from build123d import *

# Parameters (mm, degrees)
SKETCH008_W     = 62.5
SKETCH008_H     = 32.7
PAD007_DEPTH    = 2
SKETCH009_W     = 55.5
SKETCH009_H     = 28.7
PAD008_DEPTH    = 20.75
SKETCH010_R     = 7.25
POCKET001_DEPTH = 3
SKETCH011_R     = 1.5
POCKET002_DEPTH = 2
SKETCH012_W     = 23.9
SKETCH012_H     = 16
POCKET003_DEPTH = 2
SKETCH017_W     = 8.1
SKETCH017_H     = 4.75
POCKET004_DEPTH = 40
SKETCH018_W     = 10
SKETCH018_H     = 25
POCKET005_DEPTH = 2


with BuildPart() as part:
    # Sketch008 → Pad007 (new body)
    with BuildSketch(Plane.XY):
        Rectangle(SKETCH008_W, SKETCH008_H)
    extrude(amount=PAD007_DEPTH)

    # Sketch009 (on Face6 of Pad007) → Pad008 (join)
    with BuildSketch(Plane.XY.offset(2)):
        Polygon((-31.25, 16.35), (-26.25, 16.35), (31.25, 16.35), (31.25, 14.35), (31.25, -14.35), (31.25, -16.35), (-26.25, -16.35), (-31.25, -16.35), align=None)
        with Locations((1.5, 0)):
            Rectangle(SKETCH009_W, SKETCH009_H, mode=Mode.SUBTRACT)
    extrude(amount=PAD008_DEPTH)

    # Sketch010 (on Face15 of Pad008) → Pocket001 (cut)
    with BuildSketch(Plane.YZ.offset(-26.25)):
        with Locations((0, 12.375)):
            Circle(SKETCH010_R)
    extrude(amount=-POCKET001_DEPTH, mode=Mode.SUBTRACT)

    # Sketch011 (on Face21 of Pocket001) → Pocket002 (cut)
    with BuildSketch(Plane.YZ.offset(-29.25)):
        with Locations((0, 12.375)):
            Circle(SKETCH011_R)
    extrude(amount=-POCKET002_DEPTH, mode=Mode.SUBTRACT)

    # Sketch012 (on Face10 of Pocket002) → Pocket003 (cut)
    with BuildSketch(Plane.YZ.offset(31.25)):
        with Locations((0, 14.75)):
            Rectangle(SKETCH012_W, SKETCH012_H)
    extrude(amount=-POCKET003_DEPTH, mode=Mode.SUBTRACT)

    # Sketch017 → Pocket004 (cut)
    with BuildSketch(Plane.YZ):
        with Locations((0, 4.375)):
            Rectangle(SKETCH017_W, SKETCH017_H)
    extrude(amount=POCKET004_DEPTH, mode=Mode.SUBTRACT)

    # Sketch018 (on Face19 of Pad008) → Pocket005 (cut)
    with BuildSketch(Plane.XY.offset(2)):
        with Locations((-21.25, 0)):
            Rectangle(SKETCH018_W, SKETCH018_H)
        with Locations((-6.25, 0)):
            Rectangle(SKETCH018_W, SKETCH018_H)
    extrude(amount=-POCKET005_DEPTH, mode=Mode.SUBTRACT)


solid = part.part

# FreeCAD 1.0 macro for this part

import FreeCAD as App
import Part
import Sketcher

V = App.Vector

doc = App.newDocument("Part")
body = doc.addObject("PartDesign::Body", "Body")

# Sketch on XY plane
sketch1 = doc.addObject("Sketcher::SketchObject", "Sketch")
body.addObject(sketch1)
sketch1.AttachmentSupport = (doc.XY_Plane, [""])
sketch1.MapMode = "FlatFace"
sketch1.addGeometry(Part.LineSegment(V(-31.25, 16.35, 0), V(-31.25, -16.35, 0)), False)
sketch1.addGeometry(Part.LineSegment(V(-31.25, -16.35, 0), V(31.25, -16.35, 0)), False)
sketch1.addGeometry(Part.LineSegment(V(31.25, -16.35, 0), V(31.25, 16.35, 0)), False)
sketch1.addGeometry(Part.LineSegment(V(31.25, 16.35, 0), V(-31.25, 16.35, 0)), False)
sketch1.addConstraint(Sketcher.Constraint("Coincident", 0, 2, 1, 1))
sketch1.addConstraint(Sketcher.Constraint("Coincident", 1, 2, 2, 1))
sketch1.addConstraint(Sketcher.Constraint("Coincident", 2, 2, 3, 1))
sketch1.addConstraint(Sketcher.Constraint("Coincident", 3, 2, 0, 1))
sketch1.addConstraint(Sketcher.Constraint("Vertical", 0))
sketch1.addConstraint(Sketcher.Constraint("Horizontal", 1))
sketch1.addConstraint(Sketcher.Constraint("Vertical", 2))
sketch1.addConstraint(Sketcher.Constraint("Horizontal", 3))
sketch1.addConstraint(Sketcher.Constraint("Symmetric", 0, 2, 2, 2, -1, 1))
sketch1.addConstraint(Sketcher.Constraint("DistanceX", 1, 1, 1, 2, 62.5))
sketch1.addConstraint(Sketcher.Constraint("DistanceY", 0, 2, 0, 1, 32.7))
pad1 = doc.addObject("PartDesign::Pad", "Pad")
body.addObject(pad1)
pad1.Profile = sketch1
pad1.Length = 2

# Sketch on XY plane
sketch2 = doc.addObject("Sketcher::SketchObject", "Sketch001")
body.addObject(sketch2)
sketch2.AttachmentSupport = (doc.XY_Plane, [""])
sketch2.MapMode = "FlatFace"
sketch2.AttachmentOffset = App.Placement(V(0, 0, 2), App.Rotation())
sketch2.addGeometry(Part.LineSegment(V(31.25, 16.35, 0), V(-31.25, 16.35, 0)), False)
sketch2.addGeometry(Part.LineSegment(V(-31.25, 16.35, 0), V(-31.25, -16.35, 0)), False)
sketch2.addGeometry(Part.LineSegment(V(-31.25, -16.35, 0), V(31.25, -16.35, 0)), False)
sketch2.addGeometry(Part.LineSegment(V(31.25, -16.35, 0), V(31.25, 16.35, 0)), False)
sketch2.addGeometry(Part.LineSegment(V(-26.25, -14.35, 0), V(-26.25, 14.35, 0)), False)
sketch2.addGeometry(Part.LineSegment(V(-26.25, 14.35, 0), V(29.25, 14.35, 0)), False)
sketch2.addGeometry(Part.LineSegment(V(29.25, 14.35, 0), V(29.25, -14.35, 0)), False)
sketch2.addGeometry(Part.LineSegment(V(29.25, -14.35, 0), V(-26.25, -14.35, 0)), False)
sketch2.addConstraint(Sketcher.Constraint("Coincident", 0, 2, 1, 1))
sketch2.addConstraint(Sketcher.Constraint("Coincident", 1, 2, 2, 1))
sketch2.addConstraint(Sketcher.Constraint("Coincident", 2, 2, 3, 1))
sketch2.addConstraint(Sketcher.Constraint("Coincident", 3, 2, 0, 1))
sketch2.addConstraint(Sketcher.Constraint("Coincident", 4, 2, 5, 1))
sketch2.addConstraint(Sketcher.Constraint("Coincident", 5, 2, 6, 1))
sketch2.addConstraint(Sketcher.Constraint("Coincident", 6, 2, 7, 1))
sketch2.addConstraint(Sketcher.Constraint("Coincident", 7, 2, 4, 1))
sketch2.addConstraint(Sketcher.Constraint("Horizontal", 0))
sketch2.addConstraint(Sketcher.Constraint("Vertical", 1))
sketch2.addConstraint(Sketcher.Constraint("Horizontal", 2))
sketch2.addConstraint(Sketcher.Constraint("Vertical", 3))
sketch2.addConstraint(Sketcher.Constraint("Vertical", 4))
sketch2.addConstraint(Sketcher.Constraint("Horizontal", 5))
sketch2.addConstraint(Sketcher.Constraint("Vertical", 6))
sketch2.addConstraint(Sketcher.Constraint("Horizontal", 7))
sketch2.addConstraint(Sketcher.Constraint("Symmetric", 0, 2, 2, 2, -1, 1))
sketch2.addConstraint(Sketcher.Constraint("DistanceX", 0, 2, 0, 1, 62.5))
sketch2.addConstraint(Sketcher.Constraint("DistanceX", 5, 1, 5, 2, 55.5))
sketch2.addConstraint(Sketcher.Constraint("DistanceY", 1, 2, 1, 1, 32.7))
sketch2.addConstraint(Sketcher.Constraint("DistanceY", 4, 1, 4, 2, 28.7))
sketch2.addConstraint(Sketcher.Constraint("DistanceX", 0, 2, 4, 2, 5.0))
sketch2.addConstraint(Sketcher.Constraint("DistanceY", 4, 2, 0, 2, 2.0))
pad2 = doc.addObject("PartDesign::Pad", "Pad001")
body.addObject(pad2)
pad2.Profile = sketch2
pad2.Length = 20.75

# Sketch on YZ plane
sketch3 = doc.addObject("Sketcher::SketchObject", "Sketch002")
body.addObject(sketch3)
sketch3.AttachmentSupport = (doc.YZ_Plane, [""])
sketch3.MapMode = "FlatFace"
sketch3.AttachmentOffset = App.Placement(V(0, 0, -26.25), App.Rotation())
sketch3.addGeometry(Part.Circle(V(0, 12.375, 0), V(0, 0, 1), 7.25), False)
sketch3.addConstraint(Sketcher.Constraint("PointOnObject", 0, 3, -2))
sketch3.addConstraint(Sketcher.Constraint("Diameter", 0, 14.5))
sketch3.addConstraint(Sketcher.Constraint("DistanceY", -1, 1, 0, 3, 12.375))
pocket1 = doc.addObject("PartDesign::Pocket", "Pocket")
body.addObject(pocket1)
pocket1.Profile = sketch3
pocket1.Length = 3

# Sketch on YZ plane
sketch4 = doc.addObject("Sketcher::SketchObject", "Sketch003")
body.addObject(sketch4)
sketch4.AttachmentSupport = (doc.YZ_Plane, [""])
sketch4.MapMode = "FlatFace"
sketch4.AttachmentOffset = App.Placement(V(0, 0, -29.25), App.Rotation())
sketch4.addGeometry(Part.Circle(V(0, 12.375, 0), V(0, 0, 1), 1.5), False)
sketch4.addConstraint(Sketcher.Constraint("PointOnObject", 0, 3, -2))
sketch4.addConstraint(Sketcher.Constraint("Diameter", 0, 3.0))
sketch4.addConstraint(Sketcher.Constraint("DistanceY", -1, 1, 0, 3, 12.375))
pocket2 = doc.addObject("PartDesign::Pocket", "Pocket001")
body.addObject(pocket2)
pocket2.Profile = sketch4
pocket2.Length = 2

# Sketch on YZ plane
sketch5 = doc.addObject("Sketcher::SketchObject", "Sketch004")
body.addObject(sketch5)
sketch5.AttachmentSupport = (doc.YZ_Plane, [""])
sketch5.MapMode = "FlatFace"
sketch5.AttachmentOffset = App.Placement(V(0, 0, 31.25), App.Rotation())
sketch5.addGeometry(Part.LineSegment(V(-11.95, 22.75, 0), V(-11.95, 6.75, 0)), False)
sketch5.addGeometry(Part.LineSegment(V(-11.95, 6.75, 0), V(11.95, 6.75, 0)), False)
sketch5.addGeometry(Part.LineSegment(V(11.95, 6.75, 0), V(11.95, 22.75, 0)), False)
sketch5.addGeometry(Part.LineSegment(V(11.95, 22.75, 0), V(-11.95, 22.75, 0)), False)
sketch5.addConstraint(Sketcher.Constraint("Coincident", 0, 2, 1, 1))
sketch5.addConstraint(Sketcher.Constraint("Coincident", 1, 2, 2, 1))
sketch5.addConstraint(Sketcher.Constraint("Coincident", 2, 2, 3, 1))
sketch5.addConstraint(Sketcher.Constraint("Coincident", 3, 2, 0, 1))
sketch5.addConstraint(Sketcher.Constraint("Vertical", 0))
sketch5.addConstraint(Sketcher.Constraint("Horizontal", 1))
sketch5.addConstraint(Sketcher.Constraint("Vertical", 2))
sketch5.addConstraint(Sketcher.Constraint("Horizontal", 3))
sketch5.addConstraint(Sketcher.Constraint("DistanceY", 0, 2, 0, 1, 16.0))
sketch5.addConstraint(Sketcher.Constraint("DistanceX", 1, 1, 1, 2, 23.9))
sketch5.addConstraint(Sketcher.Constraint("DistanceX", 0, 2, -1, 1, 11.95))
sketch5.addConstraint(Sketcher.Constraint("DistanceY", -1, 1, 0, 2, 6.75))
pocket3 = doc.addObject("PartDesign::Pocket", "Pocket002")
body.addObject(pocket3)
pocket3.Profile = sketch5
pocket3.Length = 2

# Sketch on YZ plane
sketch6 = doc.addObject("Sketcher::SketchObject", "Sketch005")
body.addObject(sketch6)
sketch6.AttachmentSupport = (doc.YZ_Plane, [""])
sketch6.MapMode = "FlatFace"
sketch6.addGeometry(Part.LineSegment(V(-4.05, 6.75, 0), V(-4.05, 2, 0)), False)
sketch6.addGeometry(Part.LineSegment(V(-4.05, 2, 0), V(4.05, 2, 0)), False)
sketch6.addGeometry(Part.LineSegment(V(4.05, 2, 0), V(4.05, 6.75, 0)), False)
sketch6.addGeometry(Part.LineSegment(V(4.05, 6.75, 0), V(-4.05, 6.75, 0)), False)
sketch6.addConstraint(Sketcher.Constraint("Coincident", 0, 2, 1, 1))
sketch6.addConstraint(Sketcher.Constraint("Coincident", 1, 2, 2, 1))
sketch6.addConstraint(Sketcher.Constraint("Coincident", 2, 2, 3, 1))
sketch6.addConstraint(Sketcher.Constraint("Coincident", 3, 2, 0, 1))
sketch6.addConstraint(Sketcher.Constraint("Vertical", 0))
sketch6.addConstraint(Sketcher.Constraint("Horizontal", 1))
sketch6.addConstraint(Sketcher.Constraint("Vertical", 2))
sketch6.addConstraint(Sketcher.Constraint("Horizontal", 3))
sketch6.addConstraint(Sketcher.Constraint("DistanceX", 1, 1, 1, 2, 8.1))
sketch6.addConstraint(Sketcher.Constraint("DistanceY", -1, 1, 0, 2, 2.0))
sketch6.addConstraint(Sketcher.Constraint("DistanceY", 0, 2, 0, 1, 4.75))
sketch6.addConstraint(Sketcher.Constraint("DistanceX", 0, 2, -1, 1, 4.05))
pocket4 = doc.addObject("PartDesign::Pocket", "Pocket003")
body.addObject(pocket4)
pocket4.Profile = sketch6
pocket4.Length = 40
pocket4.Reversed = True

# Sketch on XY plane
sketch7 = doc.addObject("Sketcher::SketchObject", "Sketch006")
body.addObject(sketch7)
sketch7.AttachmentSupport = (doc.XY_Plane, [""])
sketch7.MapMode = "FlatFace"
sketch7.AttachmentOffset = App.Placement(V(0, 0, 2), App.Rotation())
sketch7.addGeometry(Part.LineSegment(V(-26.25, 12.5, 0), V(-26.25, -12.5, 0)), False)
sketch7.addGeometry(Part.LineSegment(V(-26.25, -12.5, 0), V(-16.25, -12.5, 0)), False)
sketch7.addGeometry(Part.LineSegment(V(-16.25, -12.5, 0), V(-16.25, 12.5, 0)), False)
sketch7.addGeometry(Part.LineSegment(V(-16.25, 12.5, 0), V(-26.25, 12.5, 0)), False)
sketch7.addGeometry(Part.LineSegment(V(-11.25, 12.5, 0), V(-11.25, -12.5, 0)), False)
sketch7.addGeometry(Part.LineSegment(V(-11.25, -12.5, 0), V(-1.25, -12.5, 0)), False)
sketch7.addGeometry(Part.LineSegment(V(-1.25, -12.5, 0), V(-1.25, 12.5, 0)), False)
sketch7.addGeometry(Part.LineSegment(V(-1.25, 12.5, 0), V(-11.25, 12.5, 0)), False)
sketch7.addConstraint(Sketcher.Constraint("Coincident", 0, 2, 1, 1))
sketch7.addConstraint(Sketcher.Constraint("Coincident", 1, 2, 2, 1))
sketch7.addConstraint(Sketcher.Constraint("Coincident", 2, 2, 3, 1))
sketch7.addConstraint(Sketcher.Constraint("Coincident", 3, 2, 0, 1))
sketch7.addConstraint(Sketcher.Constraint("Coincident", 4, 2, 5, 1))
sketch7.addConstraint(Sketcher.Constraint("Coincident", 5, 2, 6, 1))
sketch7.addConstraint(Sketcher.Constraint("Coincident", 6, 2, 7, 1))
sketch7.addConstraint(Sketcher.Constraint("Coincident", 7, 2, 4, 1))
sketch7.addConstraint(Sketcher.Constraint("Vertical", 0))
sketch7.addConstraint(Sketcher.Constraint("Horizontal", 1))
sketch7.addConstraint(Sketcher.Constraint("Vertical", 2))
sketch7.addConstraint(Sketcher.Constraint("Horizontal", 3))
sketch7.addConstraint(Sketcher.Constraint("Vertical", 4))
sketch7.addConstraint(Sketcher.Constraint("Horizontal", 5))
sketch7.addConstraint(Sketcher.Constraint("Vertical", 6))
sketch7.addConstraint(Sketcher.Constraint("Horizontal", 7))
sketch7.addConstraint(Sketcher.Constraint("Horizontal", 1, 2, 4, 2))
sketch7.addConstraint(Sketcher.Constraint("Horizontal", 3, 2, 6, 2))
sketch7.addConstraint(Sketcher.Constraint("Equal", 3, 5))
sketch7.addConstraint(Sketcher.Constraint("DistanceX", 1, 1, 1, 2, 10.0))
sketch7.addConstraint(Sketcher.Constraint("DistanceY", 0, 2, 0, 1, 25.0))
sketch7.addConstraint(Sketcher.Constraint("DistanceX", 1, 2, 4, 2, 5.0))
sketch7.addConstraint(Sketcher.Constraint("DistanceY", 0, 2, -1, 1, 12.5))
sketch7.addConstraint(Sketcher.Constraint("DistanceX", 0, 2, -1, 1, 26.25))
pocket5 = doc.addObject("PartDesign::Pocket", "Pocket004")
body.addObject(pocket5)
pocket5.Profile = sketch7
pocket5.Length = 2

doc.recompute()
